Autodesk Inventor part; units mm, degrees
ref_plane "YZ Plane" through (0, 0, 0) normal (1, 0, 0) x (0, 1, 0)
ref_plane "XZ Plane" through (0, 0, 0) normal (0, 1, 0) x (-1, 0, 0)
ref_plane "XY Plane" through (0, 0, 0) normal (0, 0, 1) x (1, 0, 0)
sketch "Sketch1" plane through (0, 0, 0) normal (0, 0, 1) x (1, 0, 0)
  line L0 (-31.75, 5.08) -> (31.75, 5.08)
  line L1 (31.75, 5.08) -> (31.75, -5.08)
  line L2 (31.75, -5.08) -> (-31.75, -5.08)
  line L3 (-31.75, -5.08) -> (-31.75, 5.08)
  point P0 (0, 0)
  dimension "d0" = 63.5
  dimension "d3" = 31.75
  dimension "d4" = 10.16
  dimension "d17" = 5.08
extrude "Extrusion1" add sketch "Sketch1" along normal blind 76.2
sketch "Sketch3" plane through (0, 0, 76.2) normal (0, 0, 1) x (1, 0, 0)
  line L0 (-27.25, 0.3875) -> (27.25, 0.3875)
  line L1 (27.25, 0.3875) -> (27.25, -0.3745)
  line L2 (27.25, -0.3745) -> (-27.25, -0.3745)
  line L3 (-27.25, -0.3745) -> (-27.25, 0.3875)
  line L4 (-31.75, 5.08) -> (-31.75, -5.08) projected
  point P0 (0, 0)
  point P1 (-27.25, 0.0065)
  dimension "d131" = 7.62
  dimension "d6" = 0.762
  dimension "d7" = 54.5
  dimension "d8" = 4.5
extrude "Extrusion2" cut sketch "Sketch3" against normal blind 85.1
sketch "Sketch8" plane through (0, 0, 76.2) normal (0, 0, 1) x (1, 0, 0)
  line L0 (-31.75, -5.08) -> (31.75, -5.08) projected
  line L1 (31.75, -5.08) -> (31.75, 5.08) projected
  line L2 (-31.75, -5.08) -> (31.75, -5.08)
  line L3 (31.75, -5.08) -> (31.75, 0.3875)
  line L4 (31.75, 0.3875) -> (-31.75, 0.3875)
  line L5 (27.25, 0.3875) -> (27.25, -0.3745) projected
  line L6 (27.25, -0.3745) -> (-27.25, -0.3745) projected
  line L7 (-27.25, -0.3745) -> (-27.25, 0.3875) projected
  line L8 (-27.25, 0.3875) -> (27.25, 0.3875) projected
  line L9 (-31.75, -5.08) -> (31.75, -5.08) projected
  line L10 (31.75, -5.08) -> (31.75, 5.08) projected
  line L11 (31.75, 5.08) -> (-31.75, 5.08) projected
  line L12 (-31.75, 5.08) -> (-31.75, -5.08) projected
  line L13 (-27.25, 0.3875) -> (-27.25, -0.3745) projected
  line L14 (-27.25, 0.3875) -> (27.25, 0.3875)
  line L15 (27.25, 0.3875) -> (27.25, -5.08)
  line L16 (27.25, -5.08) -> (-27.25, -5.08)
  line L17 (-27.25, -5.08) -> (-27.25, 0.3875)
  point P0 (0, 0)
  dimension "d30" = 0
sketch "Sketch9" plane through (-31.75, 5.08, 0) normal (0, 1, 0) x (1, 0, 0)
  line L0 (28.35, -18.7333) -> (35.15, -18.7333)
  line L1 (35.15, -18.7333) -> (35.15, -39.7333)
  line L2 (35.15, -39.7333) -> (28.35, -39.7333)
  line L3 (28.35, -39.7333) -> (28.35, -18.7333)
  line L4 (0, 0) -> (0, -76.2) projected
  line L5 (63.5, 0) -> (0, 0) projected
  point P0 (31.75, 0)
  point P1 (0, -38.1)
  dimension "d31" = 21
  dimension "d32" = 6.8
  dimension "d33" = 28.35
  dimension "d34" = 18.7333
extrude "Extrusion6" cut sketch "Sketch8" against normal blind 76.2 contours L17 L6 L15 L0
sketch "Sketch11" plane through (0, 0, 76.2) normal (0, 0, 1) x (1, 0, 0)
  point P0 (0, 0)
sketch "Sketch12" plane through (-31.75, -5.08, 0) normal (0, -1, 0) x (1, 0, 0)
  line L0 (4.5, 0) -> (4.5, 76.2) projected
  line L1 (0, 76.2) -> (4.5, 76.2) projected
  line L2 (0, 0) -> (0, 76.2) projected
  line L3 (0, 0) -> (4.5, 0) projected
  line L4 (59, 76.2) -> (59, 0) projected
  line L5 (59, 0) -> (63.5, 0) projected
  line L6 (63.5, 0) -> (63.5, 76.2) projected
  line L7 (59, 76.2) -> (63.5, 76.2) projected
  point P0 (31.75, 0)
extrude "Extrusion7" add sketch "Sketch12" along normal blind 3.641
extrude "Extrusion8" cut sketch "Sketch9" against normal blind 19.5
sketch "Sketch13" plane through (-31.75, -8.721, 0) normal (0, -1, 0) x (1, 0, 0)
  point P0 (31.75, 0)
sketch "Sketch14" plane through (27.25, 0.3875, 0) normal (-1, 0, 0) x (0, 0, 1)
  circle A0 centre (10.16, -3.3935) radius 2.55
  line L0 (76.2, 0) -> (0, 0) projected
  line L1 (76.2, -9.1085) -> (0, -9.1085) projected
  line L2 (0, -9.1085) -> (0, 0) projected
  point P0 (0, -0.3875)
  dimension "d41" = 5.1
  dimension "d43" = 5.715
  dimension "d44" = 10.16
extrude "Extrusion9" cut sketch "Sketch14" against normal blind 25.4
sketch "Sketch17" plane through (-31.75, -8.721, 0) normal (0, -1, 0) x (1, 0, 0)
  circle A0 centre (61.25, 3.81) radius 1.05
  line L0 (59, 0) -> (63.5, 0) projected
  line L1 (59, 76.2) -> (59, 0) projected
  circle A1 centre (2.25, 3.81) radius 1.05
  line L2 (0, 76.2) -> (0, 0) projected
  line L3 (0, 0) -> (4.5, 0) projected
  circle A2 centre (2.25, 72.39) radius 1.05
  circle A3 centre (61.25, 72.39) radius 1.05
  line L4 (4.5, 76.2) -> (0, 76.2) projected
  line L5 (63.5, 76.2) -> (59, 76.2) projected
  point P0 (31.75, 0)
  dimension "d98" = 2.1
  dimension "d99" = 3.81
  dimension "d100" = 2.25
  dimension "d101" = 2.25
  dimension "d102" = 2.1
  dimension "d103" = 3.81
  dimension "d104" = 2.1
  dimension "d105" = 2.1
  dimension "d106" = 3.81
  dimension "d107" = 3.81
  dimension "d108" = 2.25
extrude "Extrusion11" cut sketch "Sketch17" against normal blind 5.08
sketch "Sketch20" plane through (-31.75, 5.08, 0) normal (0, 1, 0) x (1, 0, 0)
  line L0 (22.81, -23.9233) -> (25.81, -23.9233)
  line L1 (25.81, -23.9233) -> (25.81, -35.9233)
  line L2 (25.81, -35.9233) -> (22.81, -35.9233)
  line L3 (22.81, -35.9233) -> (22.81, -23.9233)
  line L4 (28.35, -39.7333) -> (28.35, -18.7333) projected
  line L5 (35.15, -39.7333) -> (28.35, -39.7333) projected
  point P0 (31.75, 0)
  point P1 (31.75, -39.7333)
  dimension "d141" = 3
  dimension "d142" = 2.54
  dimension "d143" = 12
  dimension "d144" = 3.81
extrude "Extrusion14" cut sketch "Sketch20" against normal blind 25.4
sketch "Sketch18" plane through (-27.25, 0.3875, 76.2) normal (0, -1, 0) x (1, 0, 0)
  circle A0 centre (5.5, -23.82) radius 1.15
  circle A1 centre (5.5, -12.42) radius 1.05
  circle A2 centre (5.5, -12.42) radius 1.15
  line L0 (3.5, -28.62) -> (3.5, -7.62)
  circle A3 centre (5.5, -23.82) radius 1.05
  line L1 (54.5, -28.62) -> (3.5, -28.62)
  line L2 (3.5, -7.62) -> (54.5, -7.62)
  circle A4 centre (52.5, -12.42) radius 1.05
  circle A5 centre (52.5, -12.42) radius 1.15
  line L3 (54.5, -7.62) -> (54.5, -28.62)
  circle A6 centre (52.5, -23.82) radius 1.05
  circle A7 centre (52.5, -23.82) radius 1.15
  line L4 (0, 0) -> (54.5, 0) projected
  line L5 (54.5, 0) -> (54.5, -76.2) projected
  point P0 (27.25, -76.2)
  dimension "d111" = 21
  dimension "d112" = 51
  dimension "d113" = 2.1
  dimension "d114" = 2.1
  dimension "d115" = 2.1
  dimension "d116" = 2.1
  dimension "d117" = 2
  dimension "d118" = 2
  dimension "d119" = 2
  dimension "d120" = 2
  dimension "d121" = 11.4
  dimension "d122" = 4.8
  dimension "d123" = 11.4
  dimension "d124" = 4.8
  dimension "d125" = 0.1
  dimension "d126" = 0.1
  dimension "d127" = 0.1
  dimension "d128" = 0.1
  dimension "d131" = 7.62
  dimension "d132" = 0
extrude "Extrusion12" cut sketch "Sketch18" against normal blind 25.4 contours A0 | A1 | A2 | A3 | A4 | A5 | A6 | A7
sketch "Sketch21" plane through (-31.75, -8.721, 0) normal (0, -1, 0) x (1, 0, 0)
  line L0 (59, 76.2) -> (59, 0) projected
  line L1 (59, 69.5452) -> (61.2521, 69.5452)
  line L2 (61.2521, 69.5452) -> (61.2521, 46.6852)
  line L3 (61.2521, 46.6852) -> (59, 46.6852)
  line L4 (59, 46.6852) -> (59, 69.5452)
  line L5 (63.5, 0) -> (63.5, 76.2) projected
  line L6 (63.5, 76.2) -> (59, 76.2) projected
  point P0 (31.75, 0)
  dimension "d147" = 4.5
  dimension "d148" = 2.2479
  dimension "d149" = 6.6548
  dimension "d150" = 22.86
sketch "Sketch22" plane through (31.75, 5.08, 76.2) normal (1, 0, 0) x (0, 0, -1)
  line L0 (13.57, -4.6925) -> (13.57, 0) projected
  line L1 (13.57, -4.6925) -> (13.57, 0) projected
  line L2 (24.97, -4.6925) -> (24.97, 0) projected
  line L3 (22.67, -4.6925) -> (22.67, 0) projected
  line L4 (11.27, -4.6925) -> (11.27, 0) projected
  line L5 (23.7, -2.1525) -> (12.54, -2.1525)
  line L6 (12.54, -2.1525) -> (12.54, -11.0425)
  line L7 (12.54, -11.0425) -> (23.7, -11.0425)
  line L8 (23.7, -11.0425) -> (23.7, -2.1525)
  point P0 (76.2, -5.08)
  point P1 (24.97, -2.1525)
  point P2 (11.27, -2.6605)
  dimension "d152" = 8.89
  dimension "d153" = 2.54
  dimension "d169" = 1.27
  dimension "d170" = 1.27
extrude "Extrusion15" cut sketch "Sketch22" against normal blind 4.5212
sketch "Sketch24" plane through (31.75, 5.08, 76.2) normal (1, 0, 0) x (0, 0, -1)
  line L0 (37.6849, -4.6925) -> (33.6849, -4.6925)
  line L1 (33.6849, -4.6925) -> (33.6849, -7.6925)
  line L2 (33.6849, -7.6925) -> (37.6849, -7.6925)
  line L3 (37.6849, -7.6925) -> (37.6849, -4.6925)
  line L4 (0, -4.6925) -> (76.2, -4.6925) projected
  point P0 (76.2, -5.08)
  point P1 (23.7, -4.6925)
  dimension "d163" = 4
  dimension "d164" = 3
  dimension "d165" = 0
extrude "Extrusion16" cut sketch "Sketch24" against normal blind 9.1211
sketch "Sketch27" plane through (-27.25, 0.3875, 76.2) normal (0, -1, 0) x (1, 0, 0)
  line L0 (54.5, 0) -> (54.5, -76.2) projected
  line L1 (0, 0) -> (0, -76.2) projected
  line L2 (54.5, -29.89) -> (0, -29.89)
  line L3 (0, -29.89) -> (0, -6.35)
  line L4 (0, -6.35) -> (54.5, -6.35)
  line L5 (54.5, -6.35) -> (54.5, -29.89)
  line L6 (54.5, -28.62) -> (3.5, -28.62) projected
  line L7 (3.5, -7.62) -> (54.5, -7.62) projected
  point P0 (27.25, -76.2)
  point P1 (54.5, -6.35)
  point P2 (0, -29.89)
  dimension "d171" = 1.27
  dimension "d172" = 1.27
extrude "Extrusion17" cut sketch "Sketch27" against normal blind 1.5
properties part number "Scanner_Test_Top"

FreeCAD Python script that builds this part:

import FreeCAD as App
import Part
import Sketcher

doc = App.newDocument("Part")
body = doc.addObject("PartDesign::Body", "Body")

sketch1 = doc.addObject("Sketcher::SketchObject", "Sketch")
body.addObject(sketch1)
sketch1.AttachmentSupport = (doc.XY_Plane, [""])
sketch1.MapMode = "FlatFace"
sketch1.addGeometry([
    Part.LineSegment(App.Vector(31.75, 5.08, 0), App.Vector(-31.75, 5.08, 0)),
    Part.LineSegment(App.Vector(-31.75, 5.08, 0), App.Vector(-31.75, -5.08, 0)),
    Part.LineSegment(App.Vector(-31.75, -5.08, 0), App.Vector(31.75, -5.08, 0)),
    Part.LineSegment(App.Vector(31.75, -5.08, 0), App.Vector(31.75, 5.08, 0)),
], False)
sketch1.addConstraint([
    Sketcher.Constraint("Coincident", 0, 2, 1, 1),
    Sketcher.Constraint("Coincident", 1, 2, 2, 1),
    Sketcher.Constraint("Coincident", 2, 2, 3, 1),
    Sketcher.Constraint("Coincident", 3, 2, 0, 1),
    Sketcher.Constraint("Horizontal", 0),
    Sketcher.Constraint("Vertical", 1),
    Sketcher.Constraint("Horizontal", 2),
    Sketcher.Constraint("Vertical", 3),
    Sketcher.Constraint("Symmetric", 0, 2, 2, 2, -1, 1),
    Sketcher.Constraint("DistanceX", 0, 2, 0, 1, 63.5),
    Sketcher.Constraint("DistanceY", 1, 2, 1, 1, 10.16),
])
pad1 = doc.addObject("PartDesign::Pad", "Pad")
body.addObject(pad1)
pad1.Profile = sketch1
pad1.Length = 76.2

sketch2 = doc.addObject("Sketcher::SketchObject", "Sketch001")
body.addObject(sketch2)
sketch2.AttachmentSupport = (doc.XY_Plane, [""])
sketch2.MapMode = "FlatFace"
sketch2.AttachmentOffset = App.Placement(App.Vector(0, 0, 76.2), App.Rotation())
sketch2.addGeometry([
    Part.LineSegment(App.Vector(27.25, 0.3875, 0), App.Vector(-27.25, 0.3875, 0)),
    Part.LineSegment(App.Vector(-27.25, 0.3875, 0), App.Vector(-27.25, -0.3745, 0)),
    Part.LineSegment(App.Vector(-27.25, -0.3745, 0), App.Vector(27.25, -0.3745, 0)),
    Part.LineSegment(App.Vector(27.25, -0.3745, 0), App.Vector(27.25, 0.3875, 0)),
], False)
sketch2.addConstraint([
    Sketcher.Constraint("Coincident", 0, 2, 1, 1),
    Sketcher.Constraint("Coincident", 1, 2, 2, 1),
    Sketcher.Constraint("Coincident", 2, 2, 3, 1),
    Sketcher.Constraint("Coincident", 3, 2, 0, 1),
    Sketcher.Constraint("Horizontal", 0),
    Sketcher.Constraint("Vertical", 1),
    Sketcher.Constraint("Horizontal", 2),
    Sketcher.Constraint("Vertical", 3),
    Sketcher.Constraint("DistanceX", 0, 2, 0, 1, 54.5),
    Sketcher.Constraint("DistanceY", 1, 2, 1, 1, 0.762),
    Sketcher.Constraint("DistanceX", 0, 2, -1, 1, 27.25),
    Sketcher.Constraint("DistanceY", -1, 1, 0, 2, 0.3875),
])
pocket1 = doc.addObject("PartDesign::Pocket", "Pocket")
body.addObject(pocket1)
pocket1.Profile = sketch2
pocket1.Length = 85.1

sketch3 = doc.addObject("Sketcher::SketchObject", "Sketch002")
body.addObject(sketch3)
sketch3.AttachmentSupport = (doc.XY_Plane, [""])
sketch3.MapMode = "FlatFace"
sketch3.AttachmentOffset = App.Placement(App.Vector(0, 0, 76.2), App.Rotation())
sketch3.addGeometry([
    Part.LineSegment(App.Vector(-27.25, -0.3745, 0), App.Vector(-27.25, -5.08, 0)),
    Part.LineSegment(App.Vector(-27.25, -5.08, 0), App.Vector(27.25, -5.08, 0)),
    Part.LineSegment(App.Vector(27.25, -5.08, 0), App.Vector(27.25, -0.3745, 0)),
    Part.LineSegment(App.Vector(27.25, -0.3745, 0), App.Vector(-27.25, -0.3745, 0)),
], False)
sketch3.addConstraint([
    Sketcher.Constraint("Coincident", 0, 2, 1, 1),
    Sketcher.Constraint("Coincident", 1, 2, 2, 1),
    Sketcher.Constraint("Coincident", 2, 2, 3, 1),
    Sketcher.Constraint("Coincident", 3, 2, 0, 1),
    Sketcher.Constraint("Vertical", 0),
    Sketcher.Constraint("Horizontal", 1),
    Sketcher.Constraint("Vertical", 2),
    Sketcher.Constraint("Horizontal", 3),
    Sketcher.Constraint("DistanceX", 1, 1, 1, 2, 54.5),
    Sketcher.Constraint("DistanceX", 0, 2, -1, 1, 27.25),
    Sketcher.Constraint("DistanceY", 0, 2, -1, 1, 5.08),
    Sketcher.Constraint("DistanceY", 0, 2, 0, 1, 4.7055),
])
pocket2 = doc.addObject("PartDesign::Pocket", "Pocket001")
body.addObject(pocket2)
pocket2.Profile = sketch3
pocket2.Length = 76.2

sketch4 = doc.addObject("Sketcher::SketchObject", "Sketch003")
body.addObject(sketch4)
sketch4.AttachmentSupport = (doc.XZ_Plane, [""])
sketch4.MapMode = "FlatFace"
sketch4.AttachmentOffset = App.Placement(App.Vector(0, 0, 5.08), App.Rotation())
sketch4.addGeometry([
    Part.LineSegment(App.Vector(-31.75, 0, 0), App.Vector(-27.25, 0, 0)),
    Part.LineSegment(App.Vector(-27.25, 0, 0), App.Vector(-27.25, 76.2, 0)),
    Part.LineSegment(App.Vector(-27.25, 76.2, 0), App.Vector(-31.75, 76.2, 0)),
    Part.LineSegment(App.Vector(-31.75, 76.2, 0), App.Vector(-31.75, 0, 0)),
    Part.LineSegment(App.Vector(31.75, 76.2, 0), App.Vector(27.25, 76.2, 0)),
    Part.LineSegment(App.Vector(27.25, 76.2, 0), App.Vector(27.25, 0, 0)),
    Part.LineSegment(App.Vector(27.25, 0, 0), App.Vector(31.75, 0, 0)),
    Part.LineSegment(App.Vector(31.75, 0, 0), App.Vector(31.75, 76.2, 0)),
], False)
sketch4.addConstraint([
    Sketcher.Constraint("Coincident", 0, 2, 1, 1),
    Sketcher.Constraint("Coincident", 1, 2, 2, 1),
    Sketcher.Constraint("Coincident", 2, 2, 3, 1),
    Sketcher.Constraint("Coincident", 3, 2, 0, 1),
    Sketcher.Constraint("Coincident", 4, 2, 5, 1),
    Sketcher.Constraint("Coincident", 5, 2, 6, 1),
    Sketcher.Constraint("Coincident", 6, 2, 7, 1),
    Sketcher.Constraint("Coincident", 7, 2, 4, 1),
    Sketcher.Constraint("Horizontal", 0),
    Sketcher.Constraint("Vertical", 1),
    Sketcher.Constraint("Horizontal", 2),
    Sketcher.Constraint("Vertical", 3),
    Sketcher.Constraint("Horizontal", 4),
    Sketcher.Constraint("Vertical", 5),
    Sketcher.Constraint("Horizontal", 6),
    Sketcher.Constraint("Vertical", 7),
    Sketcher.Constraint("Symmetric", 0, 2, 5, 2, -1, 1),
    Sketcher.Constraint("Symmetric", 3, 2, 6, 2, -2),
    Sketcher.Constraint("Horizontal", 2, 2, 4, 2),
    Sketcher.Constraint("DistanceX", 0, 1, 0, 2, 4.5),
    Sketcher.Constraint("DistanceY", 1, 1, 1, 2, 76.2),
    Sketcher.Constraint("DistanceX", 2, 2, 4, 2, 59.0),
])
pad2 = doc.addObject("PartDesign::Pad", "Pad001")
body.addObject(pad2)
pad2.Profile = sketch4
pad2.Length = 3.641

sketch5 = doc.addObject("Sketcher::SketchObject", "Sketch004")
body.addObject(sketch5)
sketch5.AttachmentSupport = (doc.XZ_Plane, [""])
sketch5.MapMode = "FlatFace"
sketch5.AttachmentOffset = App.Placement(App.Vector(0, 0, -5.08), App.Rotation())
sketch5.addGeometry([
    Part.LineSegment(App.Vector(3.4, 18.7333, 0), App.Vector(-3.4, 18.7333, 0)),
    Part.LineSegment(App.Vector(-3.4, 18.7333, 0), App.Vector(-3.4, 39.7333, 0)),
    Part.LineSegment(App.Vector(-3.4, 39.7333, 0), App.Vector(3.4, 39.7333, 0)),
    Part.LineSegment(App.Vector(3.4, 39.7333, 0), App.Vector(3.4, 18.7333, 0)),
], False)
sketch5.addConstraint([
    Sketcher.Constraint("Coincident", 0, 2, 1, 1),
    Sketcher.Constraint("Coincident", 1, 2, 2, 1),
    Sketcher.Constraint("Coincident", 2, 2, 3, 1),
    Sketcher.Constraint("Coincident", 3, 2, 0, 1),
    Sketcher.Constraint("Horizontal", 0),
    Sketcher.Constraint("Vertical", 1),
    Sketcher.Constraint("Horizontal", 2),
    Sketcher.Constraint("Vertical", 3),
    Sketcher.Constraint("DistanceY", 1, 1, 1, 2, 21.0),
    Sketcher.Constraint("DistanceX", 0, 2, 0, 1, 6.8),
    Sketcher.Constraint("DistanceY", -1, 1, 0, 2, 18.7333),
    Sketcher.Constraint("DistanceX", 0, 2, -1, 1, 3.4),
])
pocket3 = doc.addObject("PartDesign::Pocket", "Pocket002")
body.addObject(pocket3)
pocket3.Profile = sketch5
pocket3.Length = 19.5
pocket3.Reversed = True

sketch6 = doc.addObject("Sketcher::SketchObject", "Sketch005")
body.addObject(sketch6)
sketch6.AttachmentSupport = (doc.YZ_Plane, [""])
sketch6.MapMode = "FlatFace"
sketch6.AttachmentOffset = App.Placement(App.Vector(0, 0, 27.25), App.Rotation())
sketch6.addGeometry(Part.Circle(App.Vector(-3.006, 10.16, 0), App.Vector(0, 0, 1), 2.55), False)
sketch6.addConstraint([
    Sketcher.Constraint("Diameter", 0, 5.1),
    Sketcher.Constraint("DistanceY", -1, 1, 0, 3, 10.16),
    Sketcher.Constraint("DistanceX", 0, 3, -1, 1, 3.006),
])
pocket4 = doc.addObject("PartDesign::Pocket", "Pocket003")
body.addObject(pocket4)
pocket4.Profile = sketch6
pocket4.Length = 25.4
pocket4.Reversed = True

sketch7 = doc.addObject("Sketcher::SketchObject", "Sketch006")
body.addObject(sketch7)
sketch7.AttachmentSupport = (doc.XZ_Plane, [""])
sketch7.MapMode = "FlatFace"
sketch7.AttachmentOffset = App.Placement(App.Vector(0, 0, 8.721), App.Rotation())
sketch7.addGeometry([
    Part.Circle(App.Vector(29.5, 3.81, 0), App.Vector(0, 0, 1), 1.05),
    Part.Circle(App.Vector(-29.5, 3.81, 0), App.Vector(0, 0, 1), 1.05),
    Part.Circle(App.Vector(-29.5, 72.39, 0), App.Vector(0, 0, 1), 1.05),
    Part.Circle(App.Vector(29.5, 72.39, 0), App.Vector(0, 0, 1), 1.05),
], False)
sketch7.addConstraint([
    Sketcher.Constraint("Equal", 0, 1),
    Sketcher.Constraint("Equal", 1, 2),
    Sketcher.Constraint("Equal", 2, 3),
    Sketcher.Constraint("Symmetric", 0, 3, 1, 3, -2),
    Sketcher.Constraint("Symmetric", 2, 3, 3, 3, -2),
    Sketcher.Constraint("Vertical", 1, 3, 2, 3),
    Sketcher.Constraint("Diameter", 0, 2.1),
    Sketcher.Constraint("DistanceY", -1, 1, 0, 3, 3.81),
    Sketcher.Constraint("DistanceX", 1, 3, 0, 3, 59.0),
    Sketcher.Constraint("DistanceY", -1, 1, 2, 3, 72.39),
])
pocket5 = doc.addObject("PartDesign::Pocket", "Pocket004")
body.addObject(pocket5)
pocket5.Profile = sketch7
pocket5.Length = 5.08

sketch8 = doc.addObject("Sketcher::SketchObject", "Sketch007")
body.addObject(sketch8)
sketch8.AttachmentSupport = (doc.XZ_Plane, [""])
sketch8.MapMode = "FlatFace"
sketch8.AttachmentOffset = App.Placement(App.Vector(0, 0, -5.08), App.Rotation())
sketch8.addGeometry([
    Part.LineSegment(App.Vector(-5.94, 23.9233, 0), App.Vector(-8.94, 23.9233, 0)),
    Part.LineSegment(App.Vector(-8.94, 23.9233, 0), App.Vector(-8.94, 35.9233, 0)),
    Part.LineSegment(App.Vector(-8.94, 35.9233, 0), App.Vector(-5.94, 35.9233, 0)),
    Part.LineSegment(App.Vector(-5.94, 35.9233, 0), App.Vector(-5.94, 23.9233, 0)),
], False)
sketch8.addConstraint([
    Sketcher.Constraint("Coincident", 0, 2, 1, 1),
    Sketcher.Constraint("Coincident", 1, 2, 2, 1),
    Sketcher.Constraint("Coincident", 2, 2, 3, 1),
    Sketcher.Constraint("Coincident", 3, 2, 0, 1),
    Sketcher.Constraint("Horizontal", 0),
    Sketcher.Constraint("Vertical", 1),
    Sketcher.Constraint("Horizontal", 2),
    Sketcher.Constraint("Vertical", 3),
    Sketcher.Constraint("DistanceX", 0, 2, 0, 1, 3.0),
    Sketcher.Constraint("DistanceY", 1, 1, 1, 2, 12.0),
    Sketcher.Constraint("DistanceX", 0, 2, -1, 1, 8.94),
    Sketcher.Constraint("DistanceY", -1, 1, 0, 2, 23.9233),
])
pocket6 = doc.addObject("PartDesign::Pocket", "Pocket005")
body.addObject(pocket6)
pocket6.Profile = sketch8
pocket6.Length = 25.4
pocket6.Reversed = True

sketch9 = doc.addObject("Sketcher::SketchObject", "Sketch008")
body.addObject(sketch9)
sketch9.AttachmentSupport = (doc.XZ_Plane, [""])
sketch9.MapMode = "FlatFace"
sketch9.AttachmentOffset = App.Placement(App.Vector(0, 0, -0.3875), App.Rotation())
sketch9.addGeometry([
    Part.Circle(App.Vector(-21.75, 52.38, 0), App.Vector(0, 0, 1), 1.15),
    Part.Circle(App.Vector(-21.75, 63.78, 0), App.Vector(0, 0, 1), 1.15),
    Part.Circle(App.Vector(25.25, 63.78, 0), App.Vector(0, 0, 1), 1.15),
    Part.Circle(App.Vector(25.25, 52.38, 0), App.Vector(0, 0, 1), 1.15),
], False)
sketch9.addConstraint([
    Sketcher.Constraint("Equal", 0, 1),
    Sketcher.Constraint("Equal", 1, 2),
    Sketcher.Constraint("Equal", 2, 3),
    Sketcher.Constraint("Horizontal", 1, 3, 2, 3),
    Sketcher.Constraint("Horizontal", 0, 3, 3, 3),
    Sketcher.Constraint("Vertical", 0, 3, 1, 3),
    Sketcher.Constraint("Vertical", 2, 3, 3, 3),
    Sketcher.Constraint("Diameter", 0, 2.3),
    Sketcher.Constraint("DistanceY", 0, 3, 1, 3, 11.4),
    Sketcher.Constraint("DistanceX", 1, 3, 2, 3, 47.0),
    Sketcher.Constraint("DistanceX", 0, 3, -1, 1, 21.75),
    Sketcher.Constraint("DistanceY", -1, 1, 0, 3, 52.38),
])
pocket7 = doc.addObject("PartDesign::Pocket", "Pocket006")
body.addObject(pocket7)
pocket7.Profile = sketch9
pocket7.Length = 25.4

sketch10 = doc.addObject("Sketcher::SketchObject", "Sketch009")
body.addObject(sketch10)
sketch10.AttachmentSupport = (doc.YZ_Plane, [""])
sketch10.MapMode = "FlatFace"
sketch10.AttachmentOffset = App.Placement(App.Vector(0, 0, 31.75), App.Rotation())
sketch10.addGeometry([
    Part.LineSegment(App.Vector(-5.9625, 52.5, 0), App.Vector(2.9275, 52.5, 0)),
    Part.LineSegment(App.Vector(2.9275, 52.5, 0), App.Vector(2.9275, 63.66, 0)),
    Part.LineSegment(App.Vector(2.9275, 63.66, 0), App.Vector(-5.9625, 63.66, 0)),
    Part.LineSegment(App.Vector(-5.9625, 63.66, 0), App.Vector(-5.9625, 52.5, 0)),
], False)
sketch10.addConstraint([
    Sketcher.Constraint("Coincident", 0, 2, 1, 1),
    Sketcher.Constraint("Coincident", 1, 2, 2, 1),
    Sketcher.Constraint("Coincident", 2, 2, 3, 1),
    Sketcher.Constraint("Coincident", 3, 2, 0, 1),
    Sketcher.Constraint("Horizontal", 0),
    Sketcher.Constraint("Vertical", 1),
    Sketcher.Constraint("Horizontal", 2),
    Sketcher.Constraint("Vertical", 3),
    Sketcher.Constraint("DistanceX", 0, 1, 0, 2, 8.89),
    Sketcher.Constraint("DistanceY", 1, 1, 1, 2, 11.16),
    Sketcher.Constraint("DistanceY", -1, 1, 0, 2, 52.5),
    Sketcher.Constraint("DistanceX", -1, 1, 0, 2, 2.9275),
])
pocket8 = doc.addObject("PartDesign::Pocket", "Pocket007")
body.addObject(pocket8)
pocket8.Profile = sketch10
pocket8.Length = 4.5212

sketch11 = doc.addObject("Sketcher::SketchObject", "Sketch010")
body.addObject(sketch11)
sketch11.AttachmentSupport = (doc.YZ_Plane, [""])
sketch11.MapMode = "FlatFace"
sketch11.AttachmentOffset = App.Placement(App.Vector(0, 0, 31.75), App.Rotation())
sketch11.addGeometry([
    Part.LineSegment(App.Vector(-2.6125, 38.5151, 0), App.Vector(0.3875, 38.5151, 0)),
    Part.LineSegment(App.Vector(0.3875, 38.5151, 0), App.Vector(0.3875, 42.5151, 0)),
    Part.LineSegment(App.Vector(0.3875, 42.5151, 0), App.Vector(-2.6125, 42.5151, 0)),
    Part.LineSegment(App.Vector(-2.6125, 42.5151, 0), App.Vector(-2.6125, 38.5151, 0)),
], False)
sketch11.addConstraint([
    Sketcher.Constraint("Coincident", 0, 2, 1, 1),
    Sketcher.Constraint("Coincident", 1, 2, 2, 1),
    Sketcher.Constraint("Coincident", 2, 2, 3, 1),
    Sketcher.Constraint("Coincident", 3, 2, 0, 1),
    Sketcher.Constraint("Horizontal", 0),
    Sketcher.Constraint("Vertical", 1),
    Sketcher.Constraint("Horizontal", 2),
    Sketcher.Constraint("Vertical", 3),
    Sketcher.Constraint("DistanceX", 0, 1, 0, 2, 3.0),
    Sketcher.Constraint("DistanceY", 1, 1, 1, 2, 4.0),
    Sketcher.Constraint("DistanceY", -1, 1, 0, 2, 38.515),
    Sketcher.Constraint("DistanceX", -1, 1, 0, 2, 0.3875),
])
pocket9 = doc.addObject("PartDesign::Pocket", "Pocket008")
body.addObject(pocket9)
pocket9.Profile = sketch11
pocket9.Length = 9.1211

sketch12 = doc.addObject("Sketcher::SketchObject", "Sketch011")
body.addObject(sketch12)
sketch12.AttachmentSupport = (doc.XZ_Plane, [""])
sketch12.MapMode = "FlatFace"
sketch12.AttachmentOffset = App.Placement(App.Vector(0, 0, -0.3875), App.Rotation())
sketch12.addGeometry([
    Part.LineSegment(App.Vector(27.25, 46.31, 0), App.Vector(27.25, 69.85, 0)),
    Part.LineSegment(App.Vector(27.25, 69.85, 0), App.Vector(-27.25, 69.85, 0)),
    Part.LineSegment(App.Vector(-27.25, 69.85, 0), App.Vector(-27.25, 46.31, 0)),
    Part.LineSegment(App.Vector(-27.25, 46.31, 0), App.Vector(27.25, 46.31, 0)),
], False)
sketch12.addConstraint([
    Sketcher.Constraint("Coincident", 0, 2, 1, 1),
    Sketcher.Constraint("Coincident", 1, 2, 2, 1),
    Sketcher.Constraint("Coincident", 2, 2, 3, 1),
    Sketcher.Constraint("Coincident", 3, 2, 0, 1),
    Sketcher.Constraint("Vertical", 0),
    Sketcher.Constraint("Horizontal", 1),
    Sketcher.Constraint("Vertical", 2),
    Sketcher.Constraint("Horizontal", 3),
    Sketcher.Constraint("DistanceX", 1, 2, 1, 1, 54.5),
    Sketcher.Constraint("DistanceY", 0, 1, 0, 2, 23.54),
    Sketcher.Constraint("DistanceX", -1, 1, 0, 2, 27.25),
    Sketcher.Constraint("DistanceY", -1, 1, 0, 2, 69.85),
])
pocket10 = doc.addObject("PartDesign::Pocket", "Pocket009")
body.addObject(pocket10)
pocket10.Profile = sketch12
pocket10.Length = 1.5

doc.recompute()
